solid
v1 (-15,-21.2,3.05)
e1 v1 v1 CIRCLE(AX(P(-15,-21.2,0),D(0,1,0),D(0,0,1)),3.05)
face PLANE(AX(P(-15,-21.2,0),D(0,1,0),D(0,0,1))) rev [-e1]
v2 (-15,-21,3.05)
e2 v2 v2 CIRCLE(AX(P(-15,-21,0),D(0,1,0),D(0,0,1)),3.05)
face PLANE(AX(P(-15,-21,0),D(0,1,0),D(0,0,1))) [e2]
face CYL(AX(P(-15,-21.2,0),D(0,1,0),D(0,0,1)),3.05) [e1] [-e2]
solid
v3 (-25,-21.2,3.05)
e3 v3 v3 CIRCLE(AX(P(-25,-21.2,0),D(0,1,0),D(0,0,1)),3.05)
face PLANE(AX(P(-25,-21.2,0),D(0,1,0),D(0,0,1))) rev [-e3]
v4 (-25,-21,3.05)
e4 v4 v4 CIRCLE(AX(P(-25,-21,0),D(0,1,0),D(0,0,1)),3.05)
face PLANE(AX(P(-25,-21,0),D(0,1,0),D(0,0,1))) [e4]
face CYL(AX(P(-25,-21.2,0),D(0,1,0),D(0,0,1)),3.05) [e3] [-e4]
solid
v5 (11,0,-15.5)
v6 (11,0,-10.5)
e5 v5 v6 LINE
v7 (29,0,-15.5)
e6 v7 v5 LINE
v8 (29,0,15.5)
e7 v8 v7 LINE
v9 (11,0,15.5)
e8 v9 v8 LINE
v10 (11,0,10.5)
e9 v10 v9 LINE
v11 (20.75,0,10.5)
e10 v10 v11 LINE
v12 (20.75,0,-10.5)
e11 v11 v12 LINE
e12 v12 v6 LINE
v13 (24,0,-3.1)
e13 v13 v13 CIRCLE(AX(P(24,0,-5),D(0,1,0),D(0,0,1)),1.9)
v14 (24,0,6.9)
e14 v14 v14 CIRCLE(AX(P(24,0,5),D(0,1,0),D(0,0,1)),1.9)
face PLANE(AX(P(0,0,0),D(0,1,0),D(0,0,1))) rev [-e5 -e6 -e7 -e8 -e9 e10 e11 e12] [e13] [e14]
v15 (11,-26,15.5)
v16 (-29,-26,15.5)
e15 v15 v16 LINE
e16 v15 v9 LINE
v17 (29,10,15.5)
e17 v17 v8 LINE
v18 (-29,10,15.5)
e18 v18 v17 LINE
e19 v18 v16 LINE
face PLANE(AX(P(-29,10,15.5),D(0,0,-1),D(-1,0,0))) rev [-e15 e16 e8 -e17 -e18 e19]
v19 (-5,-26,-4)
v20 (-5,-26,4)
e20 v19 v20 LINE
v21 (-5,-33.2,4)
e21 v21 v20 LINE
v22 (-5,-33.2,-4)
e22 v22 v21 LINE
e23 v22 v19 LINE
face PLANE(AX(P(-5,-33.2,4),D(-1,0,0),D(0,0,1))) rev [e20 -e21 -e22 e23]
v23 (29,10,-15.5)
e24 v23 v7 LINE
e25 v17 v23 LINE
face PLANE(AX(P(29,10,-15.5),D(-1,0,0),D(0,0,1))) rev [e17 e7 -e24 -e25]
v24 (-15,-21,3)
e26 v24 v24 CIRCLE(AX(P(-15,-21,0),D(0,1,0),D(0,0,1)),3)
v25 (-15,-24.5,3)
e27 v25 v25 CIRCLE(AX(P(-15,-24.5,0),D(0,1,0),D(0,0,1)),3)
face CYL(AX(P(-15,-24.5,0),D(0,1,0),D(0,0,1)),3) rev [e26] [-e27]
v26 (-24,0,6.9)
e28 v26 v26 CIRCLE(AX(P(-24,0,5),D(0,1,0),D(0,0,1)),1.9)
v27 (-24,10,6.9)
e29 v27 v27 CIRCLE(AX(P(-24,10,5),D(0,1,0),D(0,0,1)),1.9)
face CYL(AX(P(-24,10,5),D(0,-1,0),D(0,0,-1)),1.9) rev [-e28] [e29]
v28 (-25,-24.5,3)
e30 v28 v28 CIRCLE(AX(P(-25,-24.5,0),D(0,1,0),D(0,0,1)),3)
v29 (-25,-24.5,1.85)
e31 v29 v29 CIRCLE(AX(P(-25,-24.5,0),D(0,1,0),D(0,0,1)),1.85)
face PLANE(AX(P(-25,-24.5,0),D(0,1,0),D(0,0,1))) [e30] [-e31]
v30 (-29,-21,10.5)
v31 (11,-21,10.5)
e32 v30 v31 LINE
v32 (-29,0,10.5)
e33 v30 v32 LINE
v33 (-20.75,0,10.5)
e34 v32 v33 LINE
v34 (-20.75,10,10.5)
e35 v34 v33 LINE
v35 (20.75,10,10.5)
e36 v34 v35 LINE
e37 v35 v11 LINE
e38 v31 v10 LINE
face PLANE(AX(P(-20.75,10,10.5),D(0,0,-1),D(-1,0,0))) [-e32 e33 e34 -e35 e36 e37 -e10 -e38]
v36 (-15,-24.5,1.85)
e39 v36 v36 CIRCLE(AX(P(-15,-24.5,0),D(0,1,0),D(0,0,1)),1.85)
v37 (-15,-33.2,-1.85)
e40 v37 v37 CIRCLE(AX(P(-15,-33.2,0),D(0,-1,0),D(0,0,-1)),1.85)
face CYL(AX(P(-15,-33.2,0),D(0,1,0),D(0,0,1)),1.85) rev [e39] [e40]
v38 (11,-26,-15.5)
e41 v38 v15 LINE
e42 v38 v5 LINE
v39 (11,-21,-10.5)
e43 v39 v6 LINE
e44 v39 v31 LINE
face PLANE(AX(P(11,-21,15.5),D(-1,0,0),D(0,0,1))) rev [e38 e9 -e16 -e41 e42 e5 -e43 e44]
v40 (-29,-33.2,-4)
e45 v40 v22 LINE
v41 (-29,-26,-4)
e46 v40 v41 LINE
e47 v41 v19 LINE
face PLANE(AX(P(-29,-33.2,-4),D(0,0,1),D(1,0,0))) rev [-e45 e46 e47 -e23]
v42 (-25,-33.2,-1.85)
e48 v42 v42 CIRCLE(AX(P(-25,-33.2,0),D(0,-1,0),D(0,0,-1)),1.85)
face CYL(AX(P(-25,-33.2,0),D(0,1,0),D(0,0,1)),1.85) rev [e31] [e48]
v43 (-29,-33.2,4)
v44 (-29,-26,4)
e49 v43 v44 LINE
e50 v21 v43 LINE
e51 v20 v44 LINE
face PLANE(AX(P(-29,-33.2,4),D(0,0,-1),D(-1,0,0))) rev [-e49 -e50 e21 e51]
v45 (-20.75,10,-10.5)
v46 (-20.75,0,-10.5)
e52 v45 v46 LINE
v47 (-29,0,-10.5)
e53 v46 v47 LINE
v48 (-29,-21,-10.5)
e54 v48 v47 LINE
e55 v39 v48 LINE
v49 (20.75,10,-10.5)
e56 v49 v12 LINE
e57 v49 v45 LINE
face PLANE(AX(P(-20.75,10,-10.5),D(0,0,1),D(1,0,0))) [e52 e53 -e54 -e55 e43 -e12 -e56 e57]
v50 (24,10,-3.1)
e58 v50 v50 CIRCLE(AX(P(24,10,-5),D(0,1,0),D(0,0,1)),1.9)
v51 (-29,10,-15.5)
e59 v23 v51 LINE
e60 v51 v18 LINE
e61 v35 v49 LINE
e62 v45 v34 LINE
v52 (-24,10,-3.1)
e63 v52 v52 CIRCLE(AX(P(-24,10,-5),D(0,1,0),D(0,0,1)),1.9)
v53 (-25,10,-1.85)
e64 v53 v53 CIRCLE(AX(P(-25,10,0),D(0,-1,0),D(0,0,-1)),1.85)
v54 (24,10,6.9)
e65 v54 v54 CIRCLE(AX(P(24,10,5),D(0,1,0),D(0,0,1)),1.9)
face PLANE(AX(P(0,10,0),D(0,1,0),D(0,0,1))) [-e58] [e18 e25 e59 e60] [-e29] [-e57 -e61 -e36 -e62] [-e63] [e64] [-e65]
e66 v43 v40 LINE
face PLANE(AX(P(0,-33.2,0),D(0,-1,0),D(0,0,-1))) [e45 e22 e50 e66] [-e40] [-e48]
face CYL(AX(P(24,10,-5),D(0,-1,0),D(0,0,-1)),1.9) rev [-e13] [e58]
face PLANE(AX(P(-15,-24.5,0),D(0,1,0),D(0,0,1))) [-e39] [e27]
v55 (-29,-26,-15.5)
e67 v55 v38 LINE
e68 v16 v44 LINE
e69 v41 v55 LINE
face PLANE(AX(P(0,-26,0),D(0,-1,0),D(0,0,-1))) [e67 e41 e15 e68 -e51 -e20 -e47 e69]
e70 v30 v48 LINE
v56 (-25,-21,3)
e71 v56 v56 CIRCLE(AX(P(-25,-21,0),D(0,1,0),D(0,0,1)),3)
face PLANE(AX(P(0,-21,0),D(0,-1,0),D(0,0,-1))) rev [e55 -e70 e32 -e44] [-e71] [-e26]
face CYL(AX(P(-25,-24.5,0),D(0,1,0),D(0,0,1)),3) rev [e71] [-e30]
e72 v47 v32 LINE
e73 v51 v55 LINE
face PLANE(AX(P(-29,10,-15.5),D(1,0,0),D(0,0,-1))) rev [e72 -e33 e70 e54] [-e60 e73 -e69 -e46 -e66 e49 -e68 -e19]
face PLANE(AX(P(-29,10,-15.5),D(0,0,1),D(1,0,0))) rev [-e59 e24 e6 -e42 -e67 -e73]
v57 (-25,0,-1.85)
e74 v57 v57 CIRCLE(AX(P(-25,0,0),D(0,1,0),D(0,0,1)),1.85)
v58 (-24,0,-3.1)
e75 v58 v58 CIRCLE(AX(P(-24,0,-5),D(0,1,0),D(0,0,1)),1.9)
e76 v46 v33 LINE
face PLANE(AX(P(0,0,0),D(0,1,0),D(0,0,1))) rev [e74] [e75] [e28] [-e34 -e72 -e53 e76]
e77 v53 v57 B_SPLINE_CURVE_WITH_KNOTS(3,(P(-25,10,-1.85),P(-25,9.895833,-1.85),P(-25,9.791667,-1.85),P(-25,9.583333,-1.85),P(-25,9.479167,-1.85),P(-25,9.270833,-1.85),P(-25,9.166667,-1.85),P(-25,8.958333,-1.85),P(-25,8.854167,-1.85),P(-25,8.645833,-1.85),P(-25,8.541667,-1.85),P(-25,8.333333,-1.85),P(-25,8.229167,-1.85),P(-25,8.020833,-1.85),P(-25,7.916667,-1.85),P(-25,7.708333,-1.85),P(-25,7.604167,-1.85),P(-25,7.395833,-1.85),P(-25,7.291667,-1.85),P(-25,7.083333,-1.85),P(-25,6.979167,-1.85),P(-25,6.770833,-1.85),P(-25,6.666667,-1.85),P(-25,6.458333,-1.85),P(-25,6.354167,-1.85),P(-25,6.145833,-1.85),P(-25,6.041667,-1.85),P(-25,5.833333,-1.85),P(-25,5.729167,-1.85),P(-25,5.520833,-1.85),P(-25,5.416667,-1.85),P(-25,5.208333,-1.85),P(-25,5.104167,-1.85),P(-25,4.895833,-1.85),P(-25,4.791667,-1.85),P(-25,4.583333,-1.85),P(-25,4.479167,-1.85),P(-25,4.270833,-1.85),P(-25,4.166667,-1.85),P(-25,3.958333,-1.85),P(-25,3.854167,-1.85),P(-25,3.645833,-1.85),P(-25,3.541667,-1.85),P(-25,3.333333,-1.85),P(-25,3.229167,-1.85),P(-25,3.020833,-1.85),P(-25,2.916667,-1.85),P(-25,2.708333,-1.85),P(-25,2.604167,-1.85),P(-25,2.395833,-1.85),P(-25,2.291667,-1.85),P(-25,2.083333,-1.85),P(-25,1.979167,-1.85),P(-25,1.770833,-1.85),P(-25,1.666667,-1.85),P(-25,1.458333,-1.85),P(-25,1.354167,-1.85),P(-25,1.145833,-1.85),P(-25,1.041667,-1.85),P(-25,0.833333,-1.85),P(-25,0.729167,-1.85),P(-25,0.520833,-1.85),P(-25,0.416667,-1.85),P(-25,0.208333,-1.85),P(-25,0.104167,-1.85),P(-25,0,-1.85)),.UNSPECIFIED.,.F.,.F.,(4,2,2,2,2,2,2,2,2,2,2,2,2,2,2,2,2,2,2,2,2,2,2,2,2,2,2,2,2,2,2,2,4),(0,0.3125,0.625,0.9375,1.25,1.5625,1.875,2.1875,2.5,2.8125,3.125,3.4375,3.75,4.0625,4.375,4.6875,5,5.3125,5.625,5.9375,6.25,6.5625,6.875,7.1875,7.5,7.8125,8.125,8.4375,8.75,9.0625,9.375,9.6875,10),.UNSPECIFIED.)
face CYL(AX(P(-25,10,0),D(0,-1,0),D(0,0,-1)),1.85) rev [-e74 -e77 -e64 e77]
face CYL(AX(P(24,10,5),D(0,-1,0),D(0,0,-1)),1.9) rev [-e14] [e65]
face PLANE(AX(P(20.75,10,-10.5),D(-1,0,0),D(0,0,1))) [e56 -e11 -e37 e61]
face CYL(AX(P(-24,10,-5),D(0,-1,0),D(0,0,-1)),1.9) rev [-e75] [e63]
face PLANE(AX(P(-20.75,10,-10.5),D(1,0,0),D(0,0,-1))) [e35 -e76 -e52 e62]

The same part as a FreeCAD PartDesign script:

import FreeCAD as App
import Part
import Sketcher
from FreeCAD import Vector


def add_polygon(sketch, points):
    """Adds a closed chain of lines whose ends are joined by coincident constraints."""
    first, n = sketch.GeometryCount, len(points)
    for a, b in zip(points, points[1:] + points[:1]):
        sketch.addGeometry(Part.LineSegment(App.Vector(*a, 0), App.Vector(*b, 0)), False)
    for i in range(n):
        sketch.addConstraint(Sketcher.Constraint("Coincident", first + i, 2, first + (i + 1) % n, 1))

doc = App.newDocument("Part")
body = doc.addObject("PartDesign::Body", "Body")

sketch1 = body.newObject("Sketcher::SketchObject", "Sketch")
sketch1.AttachmentSupport = (doc.getObject("XZ_Plane"), [""])
sketch1.MapMode = "FlatFace"
add_polygon(sketch1, [(-29, -15.5), (-29, 15.5), (29, 15.5), (29, -15.5)])
sketch1.addGeometry(Part.Circle(Vector(-24, 5, 0), Vector(0, 0, 1), 1.9), False)
sketch1.addGeometry(Part.Circle(Vector(24, 5, 0), Vector(0, 0, 1), 1.9), False)
sketch1.addGeometry(Part.Circle(Vector(-24, -5, 0), Vector(0, 0, 1), 1.9), False)
add_polygon(sketch1, [(20.8, 10.5), (-20.8, 10.5), (-20.8, -10.5), (20.8, -10.5)])
sketch1.addGeometry(Part.Circle(Vector(24, -5, 0), Vector(0, 0, 1), 1.9), False)
sketch1.addConstraint([
    Sketcher.Constraint("Vertical", 0),
    Sketcher.Constraint("Horizontal", 1),
    Sketcher.Constraint("Vertical", 2),
    Sketcher.Constraint("Horizontal", 3),
    Sketcher.Constraint("Horizontal", 7),
    Sketcher.Constraint("Vertical", 8),
    Sketcher.Constraint("Horizontal", 9),
    Sketcher.Constraint("Vertical", 10),
    Sketcher.Constraint("Equal", 4, 5),
    Sketcher.Constraint("Equal", 5, 6),
    Sketcher.Constraint("Equal", 6, 11),
    Sketcher.Constraint("Symmetric", 5, 3, 6, 3, -1, 1),
    Sketcher.Constraint("Symmetric", 4, 3, 11, 3, -1, 1),
    Sketcher.Constraint("Symmetric", 0, 2, 2, 2, -1, 1),
    Sketcher.Constraint("Symmetric", 7, 2, 9, 2, -1, 1),
    Sketcher.Constraint("Symmetric", 4, 3, 5, 3, -2),
    Sketcher.Constraint("Diameter", 4, 3.8),
    Sketcher.Constraint("DistanceX", 1, 1, 1, 2, 58.0),
    Sketcher.Constraint("DistanceY", 0, 1, 0, 2, 31.0),
    Sketcher.Constraint("DistanceY", 8, 2, 8, 1, 21.0),
    Sketcher.Constraint("DistanceX", 7, 2, 7, 1, 41.5),
    Sketcher.Constraint("DistanceX", 4, 3, -1, 1, 24.0),
    Sketcher.Constraint("DistanceY", -1, 1, 4, 3, 5.0),
])
pad1 = body.newObject("PartDesign::Pad", "Pad")
pad1.Profile = sketch1
pad1.Length = 10
pad1.Reversed = True

sketch2 = body.newObject("Sketcher::SketchObject", "Sketch001")
sketch2.AttachmentSupport = (doc.getObject("XZ_Plane"), [""])
sketch2.MapMode = "FlatFace"
add_polygon(sketch2, [(-29, 16), (-29, 10), (11, 10), (11, 16)])
add_polygon(sketch2, [(-29, -10), (-29, -16), (11, -16), (11, -10)])
sketch2.addConstraint([
    Sketcher.Constraint("Vertical", 0),
    Sketcher.Constraint("Horizontal", 1),
    Sketcher.Constraint("Vertical", 2),
    Sketcher.Constraint("Horizontal", 3),
    Sketcher.Constraint("Vertical", 4),
    Sketcher.Constraint("Horizontal", 5),
    Sketcher.Constraint("Vertical", 6),
    Sketcher.Constraint("Horizontal", 7),
    Sketcher.Constraint("Symmetric", 3, 2, 4, 2, -1),
    Sketcher.Constraint("Symmetric", 1, 2, 6, 2, -1),
    Sketcher.Constraint("DistanceX", 1, 1, 1, 2, 40.0),
    Sketcher.Constraint("DistanceY", 0, 2, 0, 1, 5.0),
    Sketcher.Constraint("DistanceX", 0, 2, -1, 1, 29.0),
    Sketcher.Constraint("DistanceY", 4, 2, 0, 2, 26.0),
])
pad2 = body.newObject("PartDesign::Pad", "Pad001")
pad2.Profile = sketch2
pad2.Length = 21

sketch3 = body.newObject("Sketcher::SketchObject", "Sketch002")
sketch3.AttachmentSupport = (doc.getObject("XZ_Plane"), [""])
sketch3.MapMode = "FlatFace"
sketch3.AttachmentOffset = App.Placement(Vector(0, 0, 21), App.Rotation())
add_polygon(sketch3, [(-29, 16), (-29, -16), (11, -16), (11, 16)])
sketch3.addConstraint([
    Sketcher.Constraint("Vertical", 0),
    Sketcher.Constraint("Horizontal", 1),
    Sketcher.Constraint("Vertical", 2),
    Sketcher.Constraint("Horizontal", 3),
    Sketcher.Constraint("DistanceX", 1, 1, 1, 2, 40.0),
    Sketcher.Constraint("DistanceY", 0, 2, 0, 1, 31.0),
    Sketcher.Constraint("DistanceX", 0, 2, -1, 1, 29.0),
    Sketcher.Constraint("DistanceY", 0, 2, -1, 1, 15.5),
])
pad3 = body.newObject("PartDesign::Pad", "Pad002")
pad3.Profile = sketch3
pad3.Length = 5

sketch4 = body.newObject("Sketcher::SketchObject", "Sketch003")
sketch4.AttachmentSupport = (doc.getObject("XZ_Plane"), [""])
sketch4.MapMode = "FlatFace"
sketch4.AttachmentOffset = App.Placement(Vector(0, 0, 26), App.Rotation())
add_polygon(sketch4, [(-29, 4), (-29, -4), (-5, -4), (-5, 4)])
sketch4.addGeometry(Part.Circle(Vector(-25, 0, 0), Vector(0, 0, 1), 1.9), False)
sketch4.addGeometry(Part.Circle(Vector(-15, 0, 0), Vector(0, 0, 1), 1.9), False)
sketch4.addConstraint([
    Sketcher.Constraint("Vertical", 0),
    Sketcher.Constraint("Horizontal", 1),
    Sketcher.Constraint("Vertical", 2),
    Sketcher.Constraint("Horizontal", 3),
    Sketcher.Constraint("Equal", 4, 5),
    Sketcher.Constraint("PointOnObject", 4, 3, -1),
    Sketcher.Constraint("PointOnObject", 5, 3, -1),
    Sketcher.Constraint("Diameter", 4, 3.7),
    Sketcher.Constraint("DistanceX", 1, 1, 1, 2, 24.0),
    Sketcher.Constraint("DistanceY", 0, 2, 0, 1, 8.0),
    Sketcher.Constraint("DistanceX", 4, 3, -1, 1, 25.0),
    Sketcher.Constraint("DistanceX", 5, 3, -1, 1, 15.0),
    Sketcher.Constraint("DistanceX", 0, 2, -1, 1, 29.0),
    Sketcher.Constraint("DistanceY", 0, 2, -1, 1, 4.0),
])
pad4 = body.newObject("PartDesign::Pad", "Pad003")
pad4.Profile = sketch4
pad4.Length = 7.2

sketch5 = body.newObject("Sketcher::SketchObject", "Sketch004")
sketch5.AttachmentSupport = (doc.getObject("XZ_Plane"), [""])
sketch5.MapMode = "FlatFace"
sketch5.AttachmentOffset = App.Placement(Vector(0, 0, 33.2), App.Rotation())
sketch5.addGeometry([
    Part.Circle(Vector(-25, 0, 0), Vector(0, 0, 1), 1.9),
    Part.Circle(Vector(-15, 0, 0), Vector(0, 0, 1), 1.9),
], False)
sketch5.addConstraint([
    Sketcher.Constraint("Equal", 0, 1),
    Sketcher.Constraint("PointOnObject", 0, 3, -1),
    Sketcher.Constraint("PointOnObject", 1, 3, -1),
    Sketcher.Constraint("Diameter", 0, 3.7),
    Sketcher.Constraint("DistanceX", 0, 3, -1, 1, 25.0),
    Sketcher.Constraint("DistanceX", 1, 3, -1, 1, 15.0),
])
pocket1 = body.newObject("PartDesign::Pocket", "Pocket")
pocket1.Profile = sketch5
pocket1.Type = "ThroughAll"

sketch6 = body.newObject("Sketcher::SketchObject", "Sketch005")
sketch6.AttachmentSupport = (doc.getObject("XZ_Plane"), [""])
sketch6.MapMode = "FlatFace"
sketch6.AttachmentOffset = App.Placement(Vector(0, 0, 21), App.Rotation())
sketch6.addGeometry([
    Part.Circle(Vector(-25, 0, 0), Vector(0, 0, 1), 3),
    Part.Circle(Vector(-15, 0, 0), Vector(0, 0, 1), 3),
], False)
sketch6.addConstraint([
    Sketcher.Constraint("Equal", 0, 1),
    Sketcher.Constraint("PointOnObject", 0, 3, -1),
    Sketcher.Constraint("PointOnObject", 1, 3, -1),
    Sketcher.Constraint("Diameter", 0, 6.0),
    Sketcher.Constraint("DistanceX", 0, 3, -1, 1, 25.0),
    Sketcher.Constraint("DistanceX", 1, 3, -1, 1, 15.0),
])
pocket2 = body.newObject("PartDesign::Pocket", "Pocket001")
pocket2.Profile = sketch6
pocket2.Length = 3.5
pocket2.Reversed = True
body2 = doc.addObject("PartDesign::Body", "Body001")

sketch7 = body2.newObject("Sketcher::SketchObject", "Sketch006")
sketch7.AttachmentSupport = (doc.getObject("XZ_Plane001"), [""])
sketch7.MapMode = "FlatFace"
sketch7.AttachmentOffset = App.Placement(Vector(0, 0, 21), App.Rotation())
sketch7.addGeometry(Part.Circle(Vector(-25, 0, 0), Vector(0, 0, 1), 3), False)
sketch7.addConstraint([
    Sketcher.Constraint("PointOnObject", 0, 3, -1),
    Sketcher.Constraint("Diameter", 0, 6.1),
    Sketcher.Constraint("DistanceX", 0, 3, -1, 1, 25.0),
])
pad5 = body2.newObject("PartDesign::Pad", "Pad004")
pad5.Profile = sketch7
pad5.Length = 0.2
body3 = doc.addObject("PartDesign::Body", "Body002")

sketch8 = body3.newObject("Sketcher::SketchObject", "Sketch007")
sketch8.AttachmentSupport = (doc.getObject("XZ_Plane002"), [""])
sketch8.MapMode = "FlatFace"
sketch8.AttachmentOffset = App.Placement(Vector(0, 0, 21), App.Rotation())
sketch8.addGeometry(Part.Circle(Vector(-15, 0, 0), Vector(0, 0, 1), 3), False)
sketch8.addConstraint([
    Sketcher.Constraint("PointOnObject", 0, 3, -1),
    Sketcher.Constraint("Diameter", 0, 6.1),
    Sketcher.Constraint("DistanceX", 0, 3, -1, 1, 15.0),
])
pad6 = body3.newObject("PartDesign::Pad", "Pad005")
pad6.Profile = sketch8
pad6.Length = 0.2

doc.recompute()
